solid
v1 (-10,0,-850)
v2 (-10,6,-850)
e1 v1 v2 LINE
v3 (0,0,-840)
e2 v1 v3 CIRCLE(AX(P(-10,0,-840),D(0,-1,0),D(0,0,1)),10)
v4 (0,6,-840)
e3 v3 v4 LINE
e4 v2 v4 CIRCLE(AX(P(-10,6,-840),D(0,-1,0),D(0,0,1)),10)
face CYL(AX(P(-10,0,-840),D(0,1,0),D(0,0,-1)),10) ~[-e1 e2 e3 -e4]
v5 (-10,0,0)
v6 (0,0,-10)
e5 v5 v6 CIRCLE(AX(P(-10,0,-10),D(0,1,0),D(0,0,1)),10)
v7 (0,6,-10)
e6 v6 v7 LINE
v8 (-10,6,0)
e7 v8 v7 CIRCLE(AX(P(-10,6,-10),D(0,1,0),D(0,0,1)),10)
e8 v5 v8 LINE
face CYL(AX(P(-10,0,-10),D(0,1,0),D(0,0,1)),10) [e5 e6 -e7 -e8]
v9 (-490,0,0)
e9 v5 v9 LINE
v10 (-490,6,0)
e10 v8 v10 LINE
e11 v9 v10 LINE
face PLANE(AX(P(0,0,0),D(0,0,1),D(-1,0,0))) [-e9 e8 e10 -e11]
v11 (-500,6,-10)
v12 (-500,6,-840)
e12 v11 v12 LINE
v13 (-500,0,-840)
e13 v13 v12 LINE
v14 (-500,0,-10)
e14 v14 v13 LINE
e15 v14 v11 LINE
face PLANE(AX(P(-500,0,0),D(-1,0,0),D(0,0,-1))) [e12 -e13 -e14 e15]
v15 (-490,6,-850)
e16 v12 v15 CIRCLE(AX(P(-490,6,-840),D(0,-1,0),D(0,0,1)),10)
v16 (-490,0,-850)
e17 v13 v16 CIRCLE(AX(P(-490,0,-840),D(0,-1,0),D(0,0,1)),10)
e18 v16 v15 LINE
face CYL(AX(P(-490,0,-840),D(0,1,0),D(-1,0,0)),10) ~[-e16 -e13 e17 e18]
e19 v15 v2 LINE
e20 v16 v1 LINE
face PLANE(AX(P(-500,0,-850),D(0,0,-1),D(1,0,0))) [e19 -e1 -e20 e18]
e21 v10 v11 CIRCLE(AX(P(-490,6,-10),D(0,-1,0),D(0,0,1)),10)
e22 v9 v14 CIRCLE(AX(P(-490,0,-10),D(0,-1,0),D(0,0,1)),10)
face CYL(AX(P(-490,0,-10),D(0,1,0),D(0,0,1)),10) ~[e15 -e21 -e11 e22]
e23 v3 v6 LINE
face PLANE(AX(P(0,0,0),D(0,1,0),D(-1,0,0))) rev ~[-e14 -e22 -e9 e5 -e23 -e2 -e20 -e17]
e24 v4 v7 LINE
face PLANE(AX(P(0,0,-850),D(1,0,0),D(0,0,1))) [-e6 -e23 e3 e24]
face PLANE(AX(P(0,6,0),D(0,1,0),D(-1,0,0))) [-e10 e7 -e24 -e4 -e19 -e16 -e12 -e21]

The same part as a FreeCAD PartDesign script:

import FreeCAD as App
import Part
import Sketcher


def edges_at(feature, points):
    """Names of the edges that pass closest to the given points."""
    edges = feature.Shape.Edges
    near = lambda p: min(range(len(edges)), key=lambda i: edges[i].distToShape(Part.Vertex(*p))[0])
    return sorted({f"Edge{near(p) + 1}" for p in points})


def add_polygon(sketch, points):
    """Adds a closed chain of lines whose ends are joined by coincident constraints."""
    first, n = sketch.GeometryCount, len(points)
    for a, b in zip(points, points[1:] + points[:1]):
        sketch.addGeometry(Part.LineSegment(App.Vector(*a, 0), App.Vector(*b, 0)), False)
    for i in range(n):
        sketch.addConstraint(Sketcher.Constraint("Coincident", first + i, 2, first + (i + 1) % n, 1))

doc = App.newDocument("Part")
body = doc.addObject("PartDesign::Body", "Body")

# Sketch on XZ plane
sketch1 = doc.addObject("Sketcher::SketchObject", "Sketch")
body.addObject(sketch1)
sketch1.AttachmentSupport = (doc.XZ_Plane, [""])
sketch1.MapMode = "FlatFace"
add_polygon(sketch1, [(-500, 0), (0, 0), (0, -850), (-500, -850)])  # lines 0-3
sketch1.addConstraint(Sketcher.Constraint("Horizontal", 0))
sketch1.addConstraint(Sketcher.Constraint("Vertical", 1))
sketch1.addConstraint(Sketcher.Constraint("Horizontal", 2))
sketch1.addConstraint(Sketcher.Constraint("Vertical", 3))
sketch1.addConstraint(Sketcher.Constraint("Coincident", 0, 2, -1, 1))
sketch1.addConstraint(Sketcher.Constraint("DistanceX", 0, 1, 0, 2, 500.0))
sketch1.addConstraint(Sketcher.Constraint("DistanceY", 1, 2, 1, 1, 850.0))
pad1 = doc.addObject("PartDesign::Pad", "Pad")
body.addObject(pad1)
pad1.Profile = sketch1
pad1.Length = 6
pad1.Reversed = True
doc.recompute()

fillet = doc.addObject("PartDesign::Fillet", "Fillet")
body.addObject(fillet)
fillet.Base = (pad1, edges_at(pad1, [
    (0, 3, 0),
    (-500, 3, 0),
    (-500, 3, -850),
    (0, 3, -850),
]))
fillet.Radius = 10

doc.recompute()
